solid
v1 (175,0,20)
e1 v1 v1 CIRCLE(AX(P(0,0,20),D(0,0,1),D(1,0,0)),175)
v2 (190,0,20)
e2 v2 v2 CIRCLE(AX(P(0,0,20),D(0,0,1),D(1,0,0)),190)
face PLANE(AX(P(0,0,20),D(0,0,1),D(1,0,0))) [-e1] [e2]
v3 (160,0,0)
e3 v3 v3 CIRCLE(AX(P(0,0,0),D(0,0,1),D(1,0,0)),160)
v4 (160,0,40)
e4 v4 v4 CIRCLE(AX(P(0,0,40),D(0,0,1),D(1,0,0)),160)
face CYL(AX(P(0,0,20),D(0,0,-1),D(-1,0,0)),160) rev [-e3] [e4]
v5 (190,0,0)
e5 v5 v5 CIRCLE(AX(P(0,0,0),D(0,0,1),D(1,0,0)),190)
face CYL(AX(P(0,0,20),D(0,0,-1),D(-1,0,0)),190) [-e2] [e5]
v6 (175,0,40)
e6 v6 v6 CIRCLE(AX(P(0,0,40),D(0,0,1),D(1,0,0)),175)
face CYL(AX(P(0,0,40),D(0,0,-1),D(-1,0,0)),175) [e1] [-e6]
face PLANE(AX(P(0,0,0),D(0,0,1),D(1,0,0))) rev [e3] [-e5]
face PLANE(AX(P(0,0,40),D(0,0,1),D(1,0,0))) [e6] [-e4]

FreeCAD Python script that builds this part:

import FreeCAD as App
import Part
import Sketcher

V = App.Vector

doc = App.newDocument("Part")
body = doc.addObject("PartDesign::Body", "Body")

# Sketch on XY plane
sketch1 = body.newObject("Sketcher::SketchObject", "Sketch")
sketch1.AttachmentSupport = (doc.getObject("XY_Plane"), [""])
sketch1.MapMode = "FlatFace"
sketch1.addGeometry(Part.Circle(V(0, 0, 0), V(0, 0, 1), 190), False)
sketch1.addGeometry(Part.Circle(V(0, 0, 0), V(0, 0, 1), 160), False)
sketch1.addConstraint(Sketcher.Constraint("Coincident", 0, 3, -1, 1))
sketch1.addConstraint(Sketcher.Constraint("Coincident", 1, 3, -1, 1))
sketch1.addConstraint(Sketcher.Constraint("Diameter", 0, 380.0))
sketch1.addConstraint(Sketcher.Constraint("Diameter", 1, 320.0))
pad1 = body.newObject("PartDesign::Pad", "Pad")
pad1.Profile = sketch1
pad1.Length = 20

# Sketch on XY plane
sketch2 = body.newObject("Sketcher::SketchObject", "Sketch001")
sketch2.AttachmentSupport = (doc.getObject("XY_Plane"), [""])
sketch2.MapMode = "FlatFace"
sketch2.AttachmentOffset = App.Placement(V(0, 0, 20), App.Rotation())
sketch2.addGeometry(Part.Circle(V(0, 0, 0), V(0, 0, 1), 175), False)
sketch2.addGeometry(Part.Circle(V(0, 0, 0), V(0, 0, 1), 160), False)
sketch2.addConstraint(Sketcher.Constraint("Coincident", 0, 3, -1, 1))
sketch2.addConstraint(Sketcher.Constraint("Coincident", 1, 3, -1, 1))
sketch2.addConstraint(Sketcher.Constraint("Diameter", 0, 350.0))
sketch2.addConstraint(Sketcher.Constraint("Diameter", 1, 320.0))
pad2 = body.newObject("PartDesign::Pad", "Pad001")
pad2.Profile = sketch2
pad2.Length = 20

doc.recompute()
